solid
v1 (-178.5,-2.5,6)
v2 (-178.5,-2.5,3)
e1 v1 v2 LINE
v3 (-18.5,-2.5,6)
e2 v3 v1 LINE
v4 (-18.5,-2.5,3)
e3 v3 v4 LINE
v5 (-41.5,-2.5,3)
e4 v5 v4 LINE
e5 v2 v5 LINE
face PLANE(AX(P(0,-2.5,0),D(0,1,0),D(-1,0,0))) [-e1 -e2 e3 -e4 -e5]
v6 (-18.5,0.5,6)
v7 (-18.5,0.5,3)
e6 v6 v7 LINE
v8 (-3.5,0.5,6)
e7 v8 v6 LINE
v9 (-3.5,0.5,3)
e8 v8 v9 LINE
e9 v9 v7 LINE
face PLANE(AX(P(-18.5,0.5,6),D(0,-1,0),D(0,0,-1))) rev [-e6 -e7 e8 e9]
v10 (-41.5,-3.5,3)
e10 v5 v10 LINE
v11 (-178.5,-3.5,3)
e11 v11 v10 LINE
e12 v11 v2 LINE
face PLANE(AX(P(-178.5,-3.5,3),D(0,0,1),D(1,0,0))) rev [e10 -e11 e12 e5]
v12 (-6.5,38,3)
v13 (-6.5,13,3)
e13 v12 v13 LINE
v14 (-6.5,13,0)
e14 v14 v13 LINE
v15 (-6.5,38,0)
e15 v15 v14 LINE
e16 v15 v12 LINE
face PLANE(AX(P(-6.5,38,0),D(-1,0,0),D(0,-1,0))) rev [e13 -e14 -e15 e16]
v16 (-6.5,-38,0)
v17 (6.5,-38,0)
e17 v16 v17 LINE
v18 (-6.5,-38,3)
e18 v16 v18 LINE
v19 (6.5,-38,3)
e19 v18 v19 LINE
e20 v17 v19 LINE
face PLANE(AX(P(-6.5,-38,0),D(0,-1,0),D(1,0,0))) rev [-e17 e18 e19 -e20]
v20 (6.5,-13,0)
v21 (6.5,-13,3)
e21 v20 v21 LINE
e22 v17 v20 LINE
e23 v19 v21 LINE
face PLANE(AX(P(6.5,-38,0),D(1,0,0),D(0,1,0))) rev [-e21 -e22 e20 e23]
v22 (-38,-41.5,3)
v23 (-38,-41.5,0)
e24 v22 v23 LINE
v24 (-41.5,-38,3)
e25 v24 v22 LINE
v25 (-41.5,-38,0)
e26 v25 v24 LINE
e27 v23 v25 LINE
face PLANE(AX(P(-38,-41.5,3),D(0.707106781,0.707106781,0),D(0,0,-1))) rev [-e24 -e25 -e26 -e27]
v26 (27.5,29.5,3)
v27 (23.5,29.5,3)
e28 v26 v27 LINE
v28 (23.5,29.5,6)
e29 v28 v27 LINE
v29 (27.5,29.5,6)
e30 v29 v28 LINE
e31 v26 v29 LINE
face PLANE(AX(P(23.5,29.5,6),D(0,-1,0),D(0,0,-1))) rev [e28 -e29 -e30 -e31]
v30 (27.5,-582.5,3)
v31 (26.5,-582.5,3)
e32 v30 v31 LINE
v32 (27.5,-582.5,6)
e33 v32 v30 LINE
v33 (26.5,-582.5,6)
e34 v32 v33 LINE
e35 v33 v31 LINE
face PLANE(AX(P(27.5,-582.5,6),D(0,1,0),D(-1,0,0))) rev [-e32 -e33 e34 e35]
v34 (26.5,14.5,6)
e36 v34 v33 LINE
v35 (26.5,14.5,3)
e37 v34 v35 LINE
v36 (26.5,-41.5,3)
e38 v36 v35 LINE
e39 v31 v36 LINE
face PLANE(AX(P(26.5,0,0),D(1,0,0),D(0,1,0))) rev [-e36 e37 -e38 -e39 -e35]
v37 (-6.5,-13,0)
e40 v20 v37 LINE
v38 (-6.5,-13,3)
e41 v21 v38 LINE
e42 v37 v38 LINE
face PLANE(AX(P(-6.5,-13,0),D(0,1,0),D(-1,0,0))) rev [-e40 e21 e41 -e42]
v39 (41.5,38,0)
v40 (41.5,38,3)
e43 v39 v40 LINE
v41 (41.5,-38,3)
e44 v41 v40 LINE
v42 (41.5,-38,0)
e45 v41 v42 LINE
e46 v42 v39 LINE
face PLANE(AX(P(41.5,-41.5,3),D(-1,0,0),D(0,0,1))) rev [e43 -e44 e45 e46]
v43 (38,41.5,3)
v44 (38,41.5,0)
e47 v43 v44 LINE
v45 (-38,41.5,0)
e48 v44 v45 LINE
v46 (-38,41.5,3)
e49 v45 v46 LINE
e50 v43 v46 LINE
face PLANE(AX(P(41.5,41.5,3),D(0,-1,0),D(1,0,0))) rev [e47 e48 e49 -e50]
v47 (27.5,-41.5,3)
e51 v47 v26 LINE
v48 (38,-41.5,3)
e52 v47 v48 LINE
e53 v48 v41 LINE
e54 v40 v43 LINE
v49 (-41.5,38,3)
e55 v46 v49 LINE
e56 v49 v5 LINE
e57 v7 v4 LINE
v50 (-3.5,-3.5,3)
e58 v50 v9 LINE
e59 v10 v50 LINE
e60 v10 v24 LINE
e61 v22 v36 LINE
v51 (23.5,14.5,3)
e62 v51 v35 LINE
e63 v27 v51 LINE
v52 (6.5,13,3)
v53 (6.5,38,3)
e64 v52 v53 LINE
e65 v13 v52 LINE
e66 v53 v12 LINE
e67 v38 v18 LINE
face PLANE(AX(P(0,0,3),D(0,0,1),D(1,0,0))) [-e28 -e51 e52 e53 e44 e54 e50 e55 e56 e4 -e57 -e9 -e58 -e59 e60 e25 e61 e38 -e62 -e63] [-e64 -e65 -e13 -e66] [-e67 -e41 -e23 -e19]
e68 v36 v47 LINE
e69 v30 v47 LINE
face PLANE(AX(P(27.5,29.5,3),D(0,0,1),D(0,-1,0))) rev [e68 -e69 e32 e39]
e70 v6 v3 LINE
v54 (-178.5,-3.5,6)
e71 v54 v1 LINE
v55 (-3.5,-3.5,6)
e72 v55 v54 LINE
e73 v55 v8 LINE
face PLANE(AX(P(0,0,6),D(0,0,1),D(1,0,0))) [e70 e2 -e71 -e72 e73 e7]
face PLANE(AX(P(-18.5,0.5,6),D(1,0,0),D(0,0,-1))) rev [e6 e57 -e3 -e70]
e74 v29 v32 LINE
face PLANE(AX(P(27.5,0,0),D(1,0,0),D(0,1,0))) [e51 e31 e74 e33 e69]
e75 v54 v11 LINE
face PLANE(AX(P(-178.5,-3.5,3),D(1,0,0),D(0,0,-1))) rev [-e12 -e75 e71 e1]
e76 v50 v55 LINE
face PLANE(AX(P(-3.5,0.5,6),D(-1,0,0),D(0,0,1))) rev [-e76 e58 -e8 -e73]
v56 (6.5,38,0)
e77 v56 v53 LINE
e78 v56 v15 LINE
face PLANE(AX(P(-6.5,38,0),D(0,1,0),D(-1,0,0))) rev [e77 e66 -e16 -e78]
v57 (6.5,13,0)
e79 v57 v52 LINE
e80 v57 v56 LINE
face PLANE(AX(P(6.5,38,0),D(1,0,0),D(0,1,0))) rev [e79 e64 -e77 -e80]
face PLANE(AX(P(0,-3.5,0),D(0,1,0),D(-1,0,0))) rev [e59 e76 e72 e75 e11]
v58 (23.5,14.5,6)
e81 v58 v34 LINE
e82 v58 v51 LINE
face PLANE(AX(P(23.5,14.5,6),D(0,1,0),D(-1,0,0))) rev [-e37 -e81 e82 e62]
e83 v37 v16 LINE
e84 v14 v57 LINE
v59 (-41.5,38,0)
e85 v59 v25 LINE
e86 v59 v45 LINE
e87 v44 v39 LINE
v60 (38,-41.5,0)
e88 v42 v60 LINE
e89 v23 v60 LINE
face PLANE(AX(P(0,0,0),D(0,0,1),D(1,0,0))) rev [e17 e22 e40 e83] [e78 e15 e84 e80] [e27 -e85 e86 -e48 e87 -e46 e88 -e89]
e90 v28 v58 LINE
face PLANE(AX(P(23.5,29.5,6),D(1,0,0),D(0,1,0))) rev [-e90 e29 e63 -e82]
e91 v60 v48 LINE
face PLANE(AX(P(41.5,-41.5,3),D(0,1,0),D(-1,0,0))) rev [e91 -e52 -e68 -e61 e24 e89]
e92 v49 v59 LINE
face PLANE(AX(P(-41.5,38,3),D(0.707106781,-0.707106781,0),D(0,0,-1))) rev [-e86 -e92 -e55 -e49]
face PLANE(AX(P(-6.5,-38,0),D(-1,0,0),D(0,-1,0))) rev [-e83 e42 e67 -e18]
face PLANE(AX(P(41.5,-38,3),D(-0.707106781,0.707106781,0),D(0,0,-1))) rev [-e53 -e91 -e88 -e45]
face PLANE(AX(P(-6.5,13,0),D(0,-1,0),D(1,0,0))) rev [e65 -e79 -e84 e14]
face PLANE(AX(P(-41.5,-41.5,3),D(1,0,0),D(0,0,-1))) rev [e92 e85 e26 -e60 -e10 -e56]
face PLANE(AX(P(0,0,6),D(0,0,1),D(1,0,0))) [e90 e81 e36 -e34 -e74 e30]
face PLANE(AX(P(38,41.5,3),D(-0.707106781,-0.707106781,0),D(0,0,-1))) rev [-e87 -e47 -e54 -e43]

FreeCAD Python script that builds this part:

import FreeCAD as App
import Part
import Sketcher
from FreeCAD import Vector
Q = App.Units.Quantity


def edges_at(feature, points):
    """Names of the edges that pass closest to the given points."""
    edges = feature.Shape.Edges
    near = lambda p: min(range(len(edges)), key=lambda i: edges[i].distToShape(Part.Vertex(*p))[0])
    return sorted({f"Edge{near(p) + 1}" for p in points})


def add_polygon(sketch, points):
    """Adds a closed chain of lines whose ends are joined by coincident constraints."""
    first, n = sketch.GeometryCount, len(points)
    for a, b in zip(points, points[1:] + points[:1]):
        sketch.addGeometry(Part.LineSegment(App.Vector(*a, 0), App.Vector(*b, 0)), False)
    for i in range(n):
        sketch.addConstraint(Sketcher.Constraint("Coincident", first + i, 2, first + (i + 1) % n, 1))

doc = App.newDocument("Part")
body = doc.addObject("PartDesign::Body", "Body")

# Sketch on XY plane
sketch1 = body.newObject("Sketcher::SketchObject", "Sketch")
sketch1.AttachmentSupport = (doc.getObject("XY_Plane"), [""])
sketch1.MapMode = "FlatFace"
add_polygon(sketch1, [(-42, 42), (-42, -42), (42, -42), (42, 42)])  # lines 0-3
sketch1.addConstraint([
    Sketcher.Constraint("Vertical", 0),
    Sketcher.Constraint("Horizontal", 1),
    Sketcher.Constraint("Vertical", 2),
    Sketcher.Constraint("Horizontal", 3),
    Sketcher.Constraint("Symmetric", 0, 2, 2, 2, -1, 1),
    Sketcher.Constraint("Equal", 3, 0),
    Sketcher.Constraint("DistanceX", 1, 1, 1, 2, Q("83 mm")),
])
pad1 = body.newObject("PartDesign::Pad", "Pad")
pad1.Profile = sketch1
pad1.Length = 3

# Sketch on XY plane
sketch2 = body.newObject("Sketcher::SketchObject", "Sketch001")
sketch2.AttachmentSupport = (doc.getObject("XY_Plane"), [""])
sketch2.MapMode = "FlatFace"
sketch2.AttachmentOffset = App.Placement(Vector(0, 0, 3), App.Rotation())
add_polygon(sketch2, [(-6, 38), (-6, 13), (6, 13), (6, 38)])  # lines 0-3
add_polygon(sketch2, [(-6, -13), (-6, -38), (6, -38), (6, -13)])  # lines 4-7
sketch2.addConstraint([
    Sketcher.Constraint("Vertical", 0),
    Sketcher.Constraint("Horizontal", 1),
    Sketcher.Constraint("Vertical", 2),
    Sketcher.Constraint("Horizontal", 3),
    Sketcher.Constraint("Vertical", 4),
    Sketcher.Constraint("Horizontal", 5),
    Sketcher.Constraint("Vertical", 6),
    Sketcher.Constraint("Horizontal", 7),
    Sketcher.Constraint("Symmetric", 2, 2, 4, 2, -1, 1),
    Sketcher.Constraint("Symmetric", 0, 2, 6, 2, -1, 1),
    Sketcher.Constraint("Vertical", 3, 2, 4, 2),
    Sketcher.Constraint("DistanceX", 1, 1, 1, 2, Q("13 mm")),
    Sketcher.Constraint("DistanceY", 0, 2, 0, 1, Q("25 mm")),
    Sketcher.Constraint("DistanceY", -1, 1, 0, 2, Q("13 mm")),
])
pocket1 = body.newObject("PartDesign::Pocket", "Pocket")
pocket1.Profile = sketch2
pocket1.Length = 3
doc.recompute()

chamfer = body.newObject("PartDesign::Chamfer", "Chamfer")
chamfer.Base = (pocket1, edges_at(pocket1, [
    (-41.5, 41.5, 1.5),
    (41.5, 41.5, 1.5),
    (41.5, -41.5, 1.5),
    (-41.5, -41.5, 1.5),
]))
chamfer.Size = 3.5

# Sketch on XY plane
sketch3 = body.newObject("Sketcher::SketchObject", "Sketch002")
sketch3.AttachmentSupport = (doc.getObject("XY_Plane"), [""])
sketch3.MapMode = "FlatFace"
sketch3.AttachmentOffset = App.Placement(Vector(0, 0, 3), App.Rotation())
add_polygon(sketch3, [(-18.5, 0.5), (-18.5, -2.5), (-3.5, -2.5), (-3.5, 0.5)])  # lines 0-3
add_polygon(sketch3, [(23.5, 29.5), (23.5, 14.5), (26.5, 14.5), (26.5, 29.5)])  # lines 4-7
sketch3.addConstraint([
    Sketcher.Constraint("Vertical", 0),
    Sketcher.Constraint("Horizontal", 1),
    Sketcher.Constraint("Vertical", 2),
    Sketcher.Constraint("Horizontal", 3),
    Sketcher.Constraint("Vertical", 4),
    Sketcher.Constraint("Horizontal", 5),
    Sketcher.Constraint("Vertical", 6),
    Sketcher.Constraint("Horizontal", 7),
    Sketcher.Constraint("Equal", 7, 0),
    Sketcher.Constraint("Equal", 3, 4),
    Sketcher.Constraint("DistanceX", 1, 1, 1, 2, Q("15 mm")),
    Sketcher.Constraint("DistanceX", 5, 1, 5, 2, Q("3 mm")),
    Sketcher.Constraint("DistanceX", 2, 2, 4, 2, Q("27 mm")),
    Sketcher.Constraint("DistanceY", 2, 2, 4, 2, Q("14 mm")),
    Sketcher.Constraint("DistanceX", 0, 2, -1, 1, Q("18.5 mm")),
    Sketcher.Constraint("DistanceY", 0, 2, -1, 1, Q("2.5 mm")),
])
pad2 = body.newObject("PartDesign::Pad", "Pad001")
pad2.Profile = sketch3
pad2.Length = 3

# Sketch on XZ plane
sketch4 = body.newObject("Sketcher::SketchObject", "Sketch003")
sketch4.AttachmentSupport = (doc.getObject("XZ_Plane"), [""])
sketch4.MapMode = "FlatFace"
sketch4.AttachmentOffset = App.Placement(Vector(0, 0, 2.5), App.Rotation())
add_polygon(sketch4, [(-178.5, 6), (-178.5, 3), (-3.5, 3), (-3.5, 6)])  # lines 0-3
sketch4.addConstraint([
    Sketcher.Constraint("Vertical", 0),
    Sketcher.Constraint("Horizontal", 1),
    Sketcher.Constraint("Vertical", 2),
    Sketcher.Constraint("Horizontal", 3),
    Sketcher.Constraint("DistanceX", 1, 1, 1, 2, Q("175 mm")),
    Sketcher.Constraint("DistanceY", 0, 2, 0, 1, Q("3 mm")),
    Sketcher.Constraint("DistanceY", -1, 1, 0, 2, Q("3 mm")),
    Sketcher.Constraint("DistanceX", 0, 2, -1, 1, Q("178.5 mm")),
])
pad3 = body.newObject("PartDesign::Pad", "Pad002")
pad3.Profile = sketch4
pad3.Length = 1

# Sketch on YZ plane
sketch5 = body.newObject("Sketcher::SketchObject", "Sketch004")
sketch5.AttachmentSupport = (doc.getObject("YZ_Plane"), [""])
sketch5.MapMode = "FlatFace"
sketch5.AttachmentOffset = App.Placement(Vector(0, 0, 26.5), App.Rotation())
add_polygon(sketch5, [(29.5, 6), (-582.5, 6), (-582.5, 3), (29.5, 3)])  # lines 0-3
sketch5.addConstraint([
    Sketcher.Constraint("Horizontal", 0),
    Sketcher.Constraint("Vertical", 1),
    Sketcher.Constraint("Horizontal", 2),
    Sketcher.Constraint("Vertical", 3),
    Sketcher.Constraint("DistanceX", 0, 2, 0, 1, Q("612 mm")),
    Sketcher.Constraint("DistanceY", 1, 2, 1, 1, Q("3 mm")),
    Sketcher.Constraint("DistanceY", -1, 1, 0, 2, Q("6 mm")),
    Sketcher.Constraint("DistanceX", 0, 2, -1, 1, Q("582.5 mm")),
])
pad4 = body.newObject("PartDesign::Pad", "Pad003")
pad4.Profile = sketch5
pad4.Length = 1

doc.recompute()
